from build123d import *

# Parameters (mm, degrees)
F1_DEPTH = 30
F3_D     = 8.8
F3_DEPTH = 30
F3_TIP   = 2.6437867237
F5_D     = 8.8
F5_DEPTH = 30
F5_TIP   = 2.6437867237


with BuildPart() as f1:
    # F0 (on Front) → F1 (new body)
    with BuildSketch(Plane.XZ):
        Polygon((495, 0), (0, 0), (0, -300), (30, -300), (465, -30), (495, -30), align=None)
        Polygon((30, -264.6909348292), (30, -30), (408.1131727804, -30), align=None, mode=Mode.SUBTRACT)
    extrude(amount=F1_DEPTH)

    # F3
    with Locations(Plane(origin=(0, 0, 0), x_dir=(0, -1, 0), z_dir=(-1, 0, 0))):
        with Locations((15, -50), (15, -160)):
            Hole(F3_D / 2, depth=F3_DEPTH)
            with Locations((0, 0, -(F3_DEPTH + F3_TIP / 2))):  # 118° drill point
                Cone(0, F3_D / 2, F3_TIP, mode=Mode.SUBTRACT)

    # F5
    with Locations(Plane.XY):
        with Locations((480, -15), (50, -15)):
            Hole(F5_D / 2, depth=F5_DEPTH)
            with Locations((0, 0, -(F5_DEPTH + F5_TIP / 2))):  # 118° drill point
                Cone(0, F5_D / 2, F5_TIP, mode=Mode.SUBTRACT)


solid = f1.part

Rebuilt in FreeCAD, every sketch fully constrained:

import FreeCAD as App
import Part
import Sketcher
from FreeCAD import Vector


def add_polygon(sketch, points):
    """Adds a closed chain of lines whose ends are joined by coincident constraints."""
    first, n = sketch.GeometryCount, len(points)
    for a, b in zip(points, points[1:] + points[:1]):
        sketch.addGeometry(Part.LineSegment(App.Vector(*a, 0), App.Vector(*b, 0)), False)
    for i in range(n):
        sketch.addConstraint(Sketcher.Constraint("Coincident", first + i, 2, first + (i + 1) % n, 1))

doc = App.newDocument("Part")
body = doc.addObject("PartDesign::Body", "Body")

sketch1 = body.newObject("Sketcher::SketchObject", "Sketch")
sketch1.AttachmentSupport = (doc.getObject("XZ_Plane"), [""])
sketch1.MapMode = "FlatFace"
add_polygon(sketch1, [(495, 0), (0, 0), (0, -300), (30, -300), (465, -30), (495, -30)])
add_polygon(sketch1, [(408, -30), (30, -265), (30, -30)])
sketch1.addConstraint([
    Sketcher.Constraint("Horizontal", 0),
    Sketcher.Constraint("Vertical", 1),
    Sketcher.Constraint("Horizontal", 2),
    Sketcher.Constraint("Horizontal", 4),
    Sketcher.Constraint("Vertical", 5),
    Sketcher.Constraint("Vertical", 7),
    Sketcher.Constraint("Horizontal", 8),
    Sketcher.Constraint("Coincident", 0, 2, -1, 1),
    Sketcher.Constraint("Parallel", 3, 6),
    Sketcher.Constraint("Horizontal", 4, 2, 7, 2),
    Sketcher.Constraint("Vertical", 2, 2, 6, 2),
    Sketcher.Constraint("Equal", 2, 4),
    Sketcher.Constraint("Equal", 4, 5),
    Sketcher.Constraint("DistanceX", 0, 2, 0, 1, 495.0),
    Sketcher.Constraint("DistanceX", 2, 1, 2, 2, 30.0),
    Sketcher.Constraint("DistanceY", 1, 2, 1, 1, 300.0),
    Sketcher.Constraint("Distance", 6, 445.027422),
])
pad1 = body.newObject("PartDesign::Pad", "Pad")
pad1.Profile = sketch1
pad1.Length = 30

sketch2 = body.newObject("Sketcher::SketchObject", "Sketch001")
sketch2.AttachmentSupport = (doc.getObject("YZ_Plane"), [""])
sketch2.MapMode = "FlatFace"
sketch2.addGeometry([
    Part.Circle(Vector(-15, -50, 0), Vector(0, 0, 1), 4.4),
    Part.Circle(Vector(-15, -160, 0), Vector(0, 0, 1), 4.4),
], False)
sketch2.addConstraint([
    Sketcher.Constraint("Equal", 0, 1),
    Sketcher.Constraint("Vertical", 0, 3, 1, 3),
    Sketcher.Constraint("Diameter", 0, 8.8),
    Sketcher.Constraint("DistanceX", 0, 3, -1, 1, 15.0),
    Sketcher.Constraint("DistanceY", 0, 3, -1, 1, 50.0),
    Sketcher.Constraint("DistanceY", 1, 3, -1, 1, 160.0),
])
doc.recompute()
hole = body.newObject("PartDesign::Hole", "Hole")
hole.Profile = sketch2
hole.ThreadType = "None"
hole.Diameter = 8.8
hole.DepthType = "Dimension"
hole.Depth = 30
hole.DrillPoint = "Angled"
hole.DrillPointAngle = 118
hole.Reversed = True

sketch3 = body.newObject("Sketcher::SketchObject", "Sketch002")
sketch3.AttachmentSupport = (doc.getObject("XY_Plane"), [""])
sketch3.MapMode = "FlatFace"
sketch3.addGeometry([
    Part.Circle(Vector(480, -15, 0), Vector(0, 0, 1), 4.4),
    Part.Circle(Vector(50, -15, 0), Vector(0, 0, 1), 4.4),
], False)
sketch3.addConstraint([
    Sketcher.Constraint("Equal", 0, 1),
    Sketcher.Constraint("Horizontal", 0, 3, 1, 3),
    Sketcher.Constraint("Diameter", 0, 8.8),
    Sketcher.Constraint("DistanceX", -1, 1, 0, 3, 480.0),
    Sketcher.Constraint("DistanceY", 0, 3, -1, 1, 15.0),
    Sketcher.Constraint("DistanceX", -1, 1, 1, 3, 50.0),
])
doc.recompute()
hole2 = body.newObject("PartDesign::Hole", "Hole001")
hole2.Profile = sketch3
hole2.ThreadType = "None"
hole2.Diameter = 8.8
hole2.DepthType = "Dimension"
hole2.Depth = 30
hole2.DrillPoint = "Angled"
hole2.DrillPointAngle = 118

doc.recompute()
